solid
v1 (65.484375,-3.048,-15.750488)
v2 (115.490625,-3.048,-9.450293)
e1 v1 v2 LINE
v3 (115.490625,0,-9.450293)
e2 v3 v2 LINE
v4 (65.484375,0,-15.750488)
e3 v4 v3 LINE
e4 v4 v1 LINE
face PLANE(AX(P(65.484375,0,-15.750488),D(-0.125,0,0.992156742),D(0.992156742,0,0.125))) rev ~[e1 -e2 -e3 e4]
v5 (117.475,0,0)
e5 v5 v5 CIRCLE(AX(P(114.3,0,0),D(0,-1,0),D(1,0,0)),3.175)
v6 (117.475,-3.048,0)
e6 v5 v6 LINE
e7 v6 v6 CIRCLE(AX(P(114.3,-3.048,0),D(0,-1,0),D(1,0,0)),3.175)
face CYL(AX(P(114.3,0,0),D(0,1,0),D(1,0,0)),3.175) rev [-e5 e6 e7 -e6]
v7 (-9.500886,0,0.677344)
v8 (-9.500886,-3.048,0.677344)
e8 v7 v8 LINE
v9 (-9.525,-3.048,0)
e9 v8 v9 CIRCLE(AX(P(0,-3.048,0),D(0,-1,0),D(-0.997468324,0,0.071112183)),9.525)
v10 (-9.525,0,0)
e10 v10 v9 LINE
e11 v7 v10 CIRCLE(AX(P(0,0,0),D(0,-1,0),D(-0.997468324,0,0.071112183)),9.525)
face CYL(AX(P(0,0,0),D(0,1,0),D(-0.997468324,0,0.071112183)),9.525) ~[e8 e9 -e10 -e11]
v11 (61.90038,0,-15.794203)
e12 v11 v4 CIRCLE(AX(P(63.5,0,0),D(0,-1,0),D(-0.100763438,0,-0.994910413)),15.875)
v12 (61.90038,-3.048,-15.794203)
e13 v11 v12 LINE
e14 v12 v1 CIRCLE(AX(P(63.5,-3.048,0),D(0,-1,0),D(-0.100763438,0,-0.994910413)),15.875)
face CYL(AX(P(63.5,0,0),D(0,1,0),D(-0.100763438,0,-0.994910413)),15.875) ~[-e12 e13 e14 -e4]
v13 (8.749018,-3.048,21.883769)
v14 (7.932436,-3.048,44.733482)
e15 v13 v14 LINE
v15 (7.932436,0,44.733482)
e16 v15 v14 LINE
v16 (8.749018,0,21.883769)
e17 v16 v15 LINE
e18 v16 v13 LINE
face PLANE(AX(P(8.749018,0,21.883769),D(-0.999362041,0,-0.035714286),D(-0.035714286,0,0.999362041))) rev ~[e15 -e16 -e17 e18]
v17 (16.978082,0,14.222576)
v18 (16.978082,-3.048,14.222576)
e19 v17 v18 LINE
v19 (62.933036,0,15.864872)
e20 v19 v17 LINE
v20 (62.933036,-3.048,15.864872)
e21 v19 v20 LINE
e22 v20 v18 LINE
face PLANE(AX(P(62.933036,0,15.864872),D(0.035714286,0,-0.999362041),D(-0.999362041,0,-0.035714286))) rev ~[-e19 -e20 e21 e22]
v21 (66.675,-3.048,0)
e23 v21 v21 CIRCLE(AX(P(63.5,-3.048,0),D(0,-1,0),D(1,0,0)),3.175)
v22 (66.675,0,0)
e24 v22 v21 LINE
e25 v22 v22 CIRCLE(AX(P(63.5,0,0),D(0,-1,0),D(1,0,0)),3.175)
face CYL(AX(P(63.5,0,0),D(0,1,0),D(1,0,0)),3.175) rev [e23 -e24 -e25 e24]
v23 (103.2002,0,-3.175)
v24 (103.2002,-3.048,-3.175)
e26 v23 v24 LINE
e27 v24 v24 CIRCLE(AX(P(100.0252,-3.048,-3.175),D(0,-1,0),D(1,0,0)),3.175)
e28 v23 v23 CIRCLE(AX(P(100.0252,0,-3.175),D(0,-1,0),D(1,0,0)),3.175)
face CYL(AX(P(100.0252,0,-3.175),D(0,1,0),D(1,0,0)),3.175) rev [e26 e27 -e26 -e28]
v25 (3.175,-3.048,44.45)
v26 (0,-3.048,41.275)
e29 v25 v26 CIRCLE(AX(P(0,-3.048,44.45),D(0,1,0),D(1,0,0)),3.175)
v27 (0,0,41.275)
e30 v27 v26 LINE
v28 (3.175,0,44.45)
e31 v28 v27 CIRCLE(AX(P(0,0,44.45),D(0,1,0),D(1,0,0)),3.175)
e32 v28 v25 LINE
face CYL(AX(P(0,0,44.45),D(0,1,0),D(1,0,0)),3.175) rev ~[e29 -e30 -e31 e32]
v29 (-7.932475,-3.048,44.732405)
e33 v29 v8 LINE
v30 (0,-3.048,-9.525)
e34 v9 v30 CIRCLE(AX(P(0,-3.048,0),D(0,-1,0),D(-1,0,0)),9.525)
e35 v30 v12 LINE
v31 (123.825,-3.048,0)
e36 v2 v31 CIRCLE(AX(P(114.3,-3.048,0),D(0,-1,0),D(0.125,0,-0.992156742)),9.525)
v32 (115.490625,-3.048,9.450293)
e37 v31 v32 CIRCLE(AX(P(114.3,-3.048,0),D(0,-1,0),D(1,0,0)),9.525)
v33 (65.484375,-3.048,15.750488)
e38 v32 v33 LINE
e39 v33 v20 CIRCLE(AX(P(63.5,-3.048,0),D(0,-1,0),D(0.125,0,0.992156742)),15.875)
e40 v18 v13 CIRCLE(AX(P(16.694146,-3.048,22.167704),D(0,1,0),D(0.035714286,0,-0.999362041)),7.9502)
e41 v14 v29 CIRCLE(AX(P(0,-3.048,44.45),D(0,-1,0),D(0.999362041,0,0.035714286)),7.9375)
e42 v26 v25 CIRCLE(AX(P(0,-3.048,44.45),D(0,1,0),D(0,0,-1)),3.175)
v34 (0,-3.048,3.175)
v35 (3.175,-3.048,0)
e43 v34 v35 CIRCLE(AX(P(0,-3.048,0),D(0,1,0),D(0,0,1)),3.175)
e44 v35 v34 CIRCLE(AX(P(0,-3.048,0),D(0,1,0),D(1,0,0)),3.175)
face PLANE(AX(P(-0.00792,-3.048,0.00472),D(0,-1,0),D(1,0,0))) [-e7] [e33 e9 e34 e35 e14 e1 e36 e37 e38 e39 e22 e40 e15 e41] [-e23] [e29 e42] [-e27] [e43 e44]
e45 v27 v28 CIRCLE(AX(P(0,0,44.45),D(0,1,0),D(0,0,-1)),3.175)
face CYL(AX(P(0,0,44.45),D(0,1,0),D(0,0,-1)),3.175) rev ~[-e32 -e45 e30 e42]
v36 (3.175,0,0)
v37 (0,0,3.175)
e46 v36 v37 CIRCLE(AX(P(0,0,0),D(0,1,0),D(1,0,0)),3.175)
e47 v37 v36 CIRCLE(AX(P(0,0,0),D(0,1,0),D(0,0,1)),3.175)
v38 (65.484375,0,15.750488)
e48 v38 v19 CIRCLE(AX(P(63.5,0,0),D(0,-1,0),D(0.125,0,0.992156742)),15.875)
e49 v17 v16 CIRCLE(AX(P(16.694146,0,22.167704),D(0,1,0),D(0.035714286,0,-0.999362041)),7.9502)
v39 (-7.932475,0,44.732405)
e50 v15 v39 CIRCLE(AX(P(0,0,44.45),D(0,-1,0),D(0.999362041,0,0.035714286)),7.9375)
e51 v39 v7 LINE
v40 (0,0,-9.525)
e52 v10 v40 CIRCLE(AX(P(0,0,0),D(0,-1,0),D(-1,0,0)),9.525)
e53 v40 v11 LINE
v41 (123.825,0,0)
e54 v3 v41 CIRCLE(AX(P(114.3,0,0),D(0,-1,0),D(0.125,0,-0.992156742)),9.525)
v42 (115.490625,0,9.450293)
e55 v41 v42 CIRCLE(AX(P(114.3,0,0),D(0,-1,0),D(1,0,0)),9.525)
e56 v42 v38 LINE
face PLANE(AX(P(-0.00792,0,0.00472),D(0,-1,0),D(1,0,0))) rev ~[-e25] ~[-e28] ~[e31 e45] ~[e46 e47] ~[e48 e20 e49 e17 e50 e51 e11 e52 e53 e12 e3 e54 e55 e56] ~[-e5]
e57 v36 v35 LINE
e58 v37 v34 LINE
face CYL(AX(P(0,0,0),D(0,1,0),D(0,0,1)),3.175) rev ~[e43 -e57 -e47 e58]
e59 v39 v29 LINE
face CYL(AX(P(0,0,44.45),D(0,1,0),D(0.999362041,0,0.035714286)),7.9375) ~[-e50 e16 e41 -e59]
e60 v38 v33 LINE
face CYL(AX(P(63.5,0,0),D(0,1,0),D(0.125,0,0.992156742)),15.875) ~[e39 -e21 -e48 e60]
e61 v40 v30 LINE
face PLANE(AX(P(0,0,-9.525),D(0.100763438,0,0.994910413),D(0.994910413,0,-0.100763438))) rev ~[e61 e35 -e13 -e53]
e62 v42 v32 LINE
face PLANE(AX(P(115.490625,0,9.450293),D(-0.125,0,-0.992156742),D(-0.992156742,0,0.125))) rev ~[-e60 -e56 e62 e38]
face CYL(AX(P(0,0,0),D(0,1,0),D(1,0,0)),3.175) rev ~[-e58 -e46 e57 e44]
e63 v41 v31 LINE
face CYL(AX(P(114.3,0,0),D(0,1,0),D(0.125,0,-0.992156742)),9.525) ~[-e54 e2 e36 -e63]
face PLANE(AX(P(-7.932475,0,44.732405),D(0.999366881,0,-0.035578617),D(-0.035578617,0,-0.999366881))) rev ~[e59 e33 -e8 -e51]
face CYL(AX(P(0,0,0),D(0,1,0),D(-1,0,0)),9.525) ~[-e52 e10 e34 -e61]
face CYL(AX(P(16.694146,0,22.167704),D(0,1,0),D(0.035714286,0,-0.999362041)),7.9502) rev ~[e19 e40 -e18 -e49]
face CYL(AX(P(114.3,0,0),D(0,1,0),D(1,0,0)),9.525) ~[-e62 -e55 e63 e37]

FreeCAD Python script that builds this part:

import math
import FreeCAD as App
import Part
import Sketcher

V = App.Vector
Q = App.Units.Quantity

doc = App.newDocument("Part")
body = doc.addObject("PartDesign::Body", "Body")

sketch1 = body.newObject("Sketcher::SketchObject", "Sketch")
sketch1.AttachmentSupport = (doc.getObject("XZ_Plane"), [""])
sketch1.MapMode = "FlatFace"
sketch1.addGeometry(Part.LineSegment(V(-7.932475, 44.732405, 0), V(-9.500886, 0.677344, 0)), False)
sketch1.addGeometry(Part.ArcOfCircle(Part.Circle(V(0, 0, 0), V(0, 0, 1), 9.525), math.radians(175.92213), math.radians(180)), False)
sketch1.addGeometry(Part.ArcOfCircle(Part.Circle(V(0, 0, 0), V(0, 0, 1), 9.525), math.radians(180), math.radians(270)), False)
sketch1.addGeometry(Part.LineSegment(V(0, -9.525, 0), V(61.90038, -15.794203, 0)), False)
sketch1.addGeometry(Part.ArcOfCircle(Part.Circle(V(63.5, 0, 0), V(0, 0, 1), 15.875), math.radians(-95.783134), math.radians(-82.819244)), False)
sketch1.addGeometry(Part.LineSegment(V(65.484375, -15.750488, 0), V(115.490625, -9.450293, 0)), False)
sketch1.addGeometry(Part.ArcOfCircle(Part.Circle(V(114.3, 0, 0), V(0, 0, 1), 9.525), math.radians(-82.819244), math.radians(0)), False)
sketch1.addGeometry(Part.ArcOfCircle(Part.Circle(V(114.3, 0, 0), V(0, 0, 1), 9.525), math.radians(0), math.radians(82.819244)), False)
sketch1.addGeometry(Part.LineSegment(V(115.490625, 9.450293, 0), V(65.484375, 15.750488, 0)), False)
sketch1.addGeometry(Part.ArcOfCircle(Part.Circle(V(63.5, 0, 0), V(0, 0, 1), 15.875), math.radians(82.819244), math.radians(92.046713)), False)
sketch1.addGeometry(Part.LineSegment(V(62.933036, 15.864872, 0), V(16.978082, 14.222576, 0)), False)
sketch1.addGeometry(Part.ArcOfCircle(Part.Circle(V(16.694146, 22.167704, 0), V(0, 0, 1), 7.9502), math.radians(-177.953287), math.radians(-87.953287)), False)
sketch1.addGeometry(Part.LineSegment(V(8.749018, 21.883769, 0), V(7.932436, 44.733482, 0)), False)
sketch1.addGeometry(Part.ArcOfCircle(Part.Circle(V(0, 44.45, 0), V(0, 0, 1), 7.9375), math.radians(2.046713), math.radians(177.961065)), False)
sketch1.addGeometry(Part.ArcOfCircle(Part.Circle(V(0, 0, 0), V(0, 0, 1), 3.175), math.radians(0), math.radians(90)), False)
sketch1.addGeometry(Part.ArcOfCircle(Part.Circle(V(0, 0, 0), V(0, 0, 1), 3.175), math.radians(90), math.radians(360)), False)
sketch1.addGeometry(Part.Circle(V(63.5, 0, 0), V(0, 0, 1), 3.175), False)
sketch1.addGeometry(Part.Circle(V(100.0252, -3.175, 0), V(0, 0, 1), 3.175), False)
sketch1.addGeometry(Part.Circle(V(114.3, 0, 0), V(0, 0, 1), 3.175), False)
sketch1.addGeometry(Part.ArcOfCircle(Part.Circle(V(0, 44.45, 0), V(0, 0, 1), 3.175), math.radians(0), math.radians(270)), False)
sketch1.addGeometry(Part.ArcOfCircle(Part.Circle(V(0, 44.45, 0), V(0, 0, 1), 3.175), math.radians(-90), math.radians(0)), False)
sketch1.addConstraint(Sketcher.Constraint("Coincident", 0, 2, 1, 1))
sketch1.addConstraint(Sketcher.Constraint("Tangent", 1, 2, 2, 1))
sketch1.addConstraint(Sketcher.Constraint("Coincident", 2, 2, 3, 1))
sketch1.addConstraint(Sketcher.Constraint("Tangent", 3, 2, 4, 1))
sketch1.addConstraint(Sketcher.Constraint("Tangent", 4, 2, 5, 1))
sketch1.addConstraint(Sketcher.Constraint("Tangent", 5, 2, 6, 1))
sketch1.addConstraint(Sketcher.Constraint("Tangent", 6, 2, 7, 1))
sketch1.addConstraint(Sketcher.Constraint("Tangent", 7, 2, 8, 1))
sketch1.addConstraint(Sketcher.Constraint("Tangent", 8, 2, 9, 1))
sketch1.addConstraint(Sketcher.Constraint("Tangent", 9, 2, 10, 1))
sketch1.addConstraint(Sketcher.Constraint("Tangent", 10, 2, 11, 2))
sketch1.addConstraint(Sketcher.Constraint("Tangent", 11, 1, 12, 1))
sketch1.addConstraint(Sketcher.Constraint("Tangent", 12, 2, 13, 1))
sketch1.addConstraint(Sketcher.Constraint("Tangent", 13, 2, 0, 1))
sketch1.addConstraint(Sketcher.Constraint("Tangent", 14, 1, 15, 2))
sketch1.addConstraint(Sketcher.Constraint("Coincident", 15, 1, 14, 2))
sketch1.addConstraint(Sketcher.Constraint("Tangent", 19, 1, 20, 2))
sketch1.addConstraint(Sketcher.Constraint("Coincident", 20, 1, 19, 2))
sketch1.addConstraint(Sketcher.Constraint("Coincident", 1, 3, -1, 1))
sketch1.addConstraint(Sketcher.Constraint("Coincident", 14, 3, -1, 1))
sketch1.addConstraint(Sketcher.Constraint("Coincident", 9, 3, 4, 3))
sketch1.addConstraint(Sketcher.Constraint("Coincident", 16, 3, 4, 3))
sketch1.addConstraint(Sketcher.Constraint("Coincident", 18, 3, 6, 3))
sketch1.addConstraint(Sketcher.Constraint("Coincident", 19, 3, 13, 3))
sketch1.addConstraint(Sketcher.Constraint("Equal", 1, 2))
sketch1.addConstraint(Sketcher.Constraint("Equal", 2, 6))
sketch1.addConstraint(Sketcher.Constraint("Equal", 6, 7))
sketch1.addConstraint(Sketcher.Constraint("Equal", 4, 9))
sketch1.addConstraint(Sketcher.Constraint("Equal", 15, 16))
sketch1.addConstraint(Sketcher.Constraint("Equal", 16, 17))
sketch1.addConstraint(Sketcher.Constraint("Equal", 17, 18))
sketch1.addConstraint(Sketcher.Constraint("Equal", 18, 19))
sketch1.addConstraint(Sketcher.Constraint("Symmetric", 5, 2, 7, 2, -1))
sketch1.addConstraint(Sketcher.Constraint("PointOnObject", 13, 3, -2))
sketch1.addConstraint(Sketcher.Constraint("PointOnObject", 1, 2, -1))
sketch1.addConstraint(Sketcher.Constraint("PointOnObject", 2, 2, -2))
sketch1.addConstraint(Sketcher.Constraint("PointOnObject", 6, 2, -1))
sketch1.addConstraint(Sketcher.Constraint("PointOnObject", 14, 1, -1))
sketch1.addConstraint(Sketcher.Constraint("PointOnObject", 15, 1, -2))
sketch1.addConstraint(Sketcher.Constraint("PointOnObject", 20, 1, -2))
sketch1.addConstraint(Sketcher.Constraint("Perpendicular", 10, 12))
sketch1.addConstraint(Sketcher.Constraint("Horizontal", 20, 3, 19, 1))
sketch1.addConstraint(Sketcher.Constraint("Diameter", 16, Q("0.25 in")))
sketch1.addConstraint(Sketcher.Constraint("Radius", 1, Q("0.375 in")))
sketch1.addConstraint(Sketcher.Constraint("Radius", 4, Q("0.625 in")))
sketch1.addConstraint(Sketcher.Constraint("Radius", 11, Q("0.313 in")))
sketch1.addConstraint(Sketcher.Constraint("Radius", 13, Q("0.3125 in")))
sketch1.addConstraint(Sketcher.Constraint("DistanceX", 4, 3, 6, 3, Q("2 in")))
sketch1.addConstraint(Sketcher.Constraint("DistanceX", -1, 1, 4, 3, Q("2.5 in")))
sketch1.addConstraint(Sketcher.Constraint("DistanceY", -1, 1, 13, 3, Q("1.75 in")))
sketch1.addConstraint(Sketcher.Constraint("DistanceX", -1, 1, 17, 3, Q("3.938 in")))
sketch1.addConstraint(Sketcher.Constraint("DistanceY", 17, 3, -1, 1, Q("0.125 in")))
sketch1.addConstraint(Sketcher.Constraint("Distance", 12, Q("22.8643 mm")))
sketch1.addConstraint(Sketcher.Constraint("Distance", 0, Q("44.082972 mm")))
pad1 = body.newObject("PartDesign::Pad", "Pad")
pad1.Profile = sketch1
pad1.Length = Q("0.12 in")

doc.recompute()
